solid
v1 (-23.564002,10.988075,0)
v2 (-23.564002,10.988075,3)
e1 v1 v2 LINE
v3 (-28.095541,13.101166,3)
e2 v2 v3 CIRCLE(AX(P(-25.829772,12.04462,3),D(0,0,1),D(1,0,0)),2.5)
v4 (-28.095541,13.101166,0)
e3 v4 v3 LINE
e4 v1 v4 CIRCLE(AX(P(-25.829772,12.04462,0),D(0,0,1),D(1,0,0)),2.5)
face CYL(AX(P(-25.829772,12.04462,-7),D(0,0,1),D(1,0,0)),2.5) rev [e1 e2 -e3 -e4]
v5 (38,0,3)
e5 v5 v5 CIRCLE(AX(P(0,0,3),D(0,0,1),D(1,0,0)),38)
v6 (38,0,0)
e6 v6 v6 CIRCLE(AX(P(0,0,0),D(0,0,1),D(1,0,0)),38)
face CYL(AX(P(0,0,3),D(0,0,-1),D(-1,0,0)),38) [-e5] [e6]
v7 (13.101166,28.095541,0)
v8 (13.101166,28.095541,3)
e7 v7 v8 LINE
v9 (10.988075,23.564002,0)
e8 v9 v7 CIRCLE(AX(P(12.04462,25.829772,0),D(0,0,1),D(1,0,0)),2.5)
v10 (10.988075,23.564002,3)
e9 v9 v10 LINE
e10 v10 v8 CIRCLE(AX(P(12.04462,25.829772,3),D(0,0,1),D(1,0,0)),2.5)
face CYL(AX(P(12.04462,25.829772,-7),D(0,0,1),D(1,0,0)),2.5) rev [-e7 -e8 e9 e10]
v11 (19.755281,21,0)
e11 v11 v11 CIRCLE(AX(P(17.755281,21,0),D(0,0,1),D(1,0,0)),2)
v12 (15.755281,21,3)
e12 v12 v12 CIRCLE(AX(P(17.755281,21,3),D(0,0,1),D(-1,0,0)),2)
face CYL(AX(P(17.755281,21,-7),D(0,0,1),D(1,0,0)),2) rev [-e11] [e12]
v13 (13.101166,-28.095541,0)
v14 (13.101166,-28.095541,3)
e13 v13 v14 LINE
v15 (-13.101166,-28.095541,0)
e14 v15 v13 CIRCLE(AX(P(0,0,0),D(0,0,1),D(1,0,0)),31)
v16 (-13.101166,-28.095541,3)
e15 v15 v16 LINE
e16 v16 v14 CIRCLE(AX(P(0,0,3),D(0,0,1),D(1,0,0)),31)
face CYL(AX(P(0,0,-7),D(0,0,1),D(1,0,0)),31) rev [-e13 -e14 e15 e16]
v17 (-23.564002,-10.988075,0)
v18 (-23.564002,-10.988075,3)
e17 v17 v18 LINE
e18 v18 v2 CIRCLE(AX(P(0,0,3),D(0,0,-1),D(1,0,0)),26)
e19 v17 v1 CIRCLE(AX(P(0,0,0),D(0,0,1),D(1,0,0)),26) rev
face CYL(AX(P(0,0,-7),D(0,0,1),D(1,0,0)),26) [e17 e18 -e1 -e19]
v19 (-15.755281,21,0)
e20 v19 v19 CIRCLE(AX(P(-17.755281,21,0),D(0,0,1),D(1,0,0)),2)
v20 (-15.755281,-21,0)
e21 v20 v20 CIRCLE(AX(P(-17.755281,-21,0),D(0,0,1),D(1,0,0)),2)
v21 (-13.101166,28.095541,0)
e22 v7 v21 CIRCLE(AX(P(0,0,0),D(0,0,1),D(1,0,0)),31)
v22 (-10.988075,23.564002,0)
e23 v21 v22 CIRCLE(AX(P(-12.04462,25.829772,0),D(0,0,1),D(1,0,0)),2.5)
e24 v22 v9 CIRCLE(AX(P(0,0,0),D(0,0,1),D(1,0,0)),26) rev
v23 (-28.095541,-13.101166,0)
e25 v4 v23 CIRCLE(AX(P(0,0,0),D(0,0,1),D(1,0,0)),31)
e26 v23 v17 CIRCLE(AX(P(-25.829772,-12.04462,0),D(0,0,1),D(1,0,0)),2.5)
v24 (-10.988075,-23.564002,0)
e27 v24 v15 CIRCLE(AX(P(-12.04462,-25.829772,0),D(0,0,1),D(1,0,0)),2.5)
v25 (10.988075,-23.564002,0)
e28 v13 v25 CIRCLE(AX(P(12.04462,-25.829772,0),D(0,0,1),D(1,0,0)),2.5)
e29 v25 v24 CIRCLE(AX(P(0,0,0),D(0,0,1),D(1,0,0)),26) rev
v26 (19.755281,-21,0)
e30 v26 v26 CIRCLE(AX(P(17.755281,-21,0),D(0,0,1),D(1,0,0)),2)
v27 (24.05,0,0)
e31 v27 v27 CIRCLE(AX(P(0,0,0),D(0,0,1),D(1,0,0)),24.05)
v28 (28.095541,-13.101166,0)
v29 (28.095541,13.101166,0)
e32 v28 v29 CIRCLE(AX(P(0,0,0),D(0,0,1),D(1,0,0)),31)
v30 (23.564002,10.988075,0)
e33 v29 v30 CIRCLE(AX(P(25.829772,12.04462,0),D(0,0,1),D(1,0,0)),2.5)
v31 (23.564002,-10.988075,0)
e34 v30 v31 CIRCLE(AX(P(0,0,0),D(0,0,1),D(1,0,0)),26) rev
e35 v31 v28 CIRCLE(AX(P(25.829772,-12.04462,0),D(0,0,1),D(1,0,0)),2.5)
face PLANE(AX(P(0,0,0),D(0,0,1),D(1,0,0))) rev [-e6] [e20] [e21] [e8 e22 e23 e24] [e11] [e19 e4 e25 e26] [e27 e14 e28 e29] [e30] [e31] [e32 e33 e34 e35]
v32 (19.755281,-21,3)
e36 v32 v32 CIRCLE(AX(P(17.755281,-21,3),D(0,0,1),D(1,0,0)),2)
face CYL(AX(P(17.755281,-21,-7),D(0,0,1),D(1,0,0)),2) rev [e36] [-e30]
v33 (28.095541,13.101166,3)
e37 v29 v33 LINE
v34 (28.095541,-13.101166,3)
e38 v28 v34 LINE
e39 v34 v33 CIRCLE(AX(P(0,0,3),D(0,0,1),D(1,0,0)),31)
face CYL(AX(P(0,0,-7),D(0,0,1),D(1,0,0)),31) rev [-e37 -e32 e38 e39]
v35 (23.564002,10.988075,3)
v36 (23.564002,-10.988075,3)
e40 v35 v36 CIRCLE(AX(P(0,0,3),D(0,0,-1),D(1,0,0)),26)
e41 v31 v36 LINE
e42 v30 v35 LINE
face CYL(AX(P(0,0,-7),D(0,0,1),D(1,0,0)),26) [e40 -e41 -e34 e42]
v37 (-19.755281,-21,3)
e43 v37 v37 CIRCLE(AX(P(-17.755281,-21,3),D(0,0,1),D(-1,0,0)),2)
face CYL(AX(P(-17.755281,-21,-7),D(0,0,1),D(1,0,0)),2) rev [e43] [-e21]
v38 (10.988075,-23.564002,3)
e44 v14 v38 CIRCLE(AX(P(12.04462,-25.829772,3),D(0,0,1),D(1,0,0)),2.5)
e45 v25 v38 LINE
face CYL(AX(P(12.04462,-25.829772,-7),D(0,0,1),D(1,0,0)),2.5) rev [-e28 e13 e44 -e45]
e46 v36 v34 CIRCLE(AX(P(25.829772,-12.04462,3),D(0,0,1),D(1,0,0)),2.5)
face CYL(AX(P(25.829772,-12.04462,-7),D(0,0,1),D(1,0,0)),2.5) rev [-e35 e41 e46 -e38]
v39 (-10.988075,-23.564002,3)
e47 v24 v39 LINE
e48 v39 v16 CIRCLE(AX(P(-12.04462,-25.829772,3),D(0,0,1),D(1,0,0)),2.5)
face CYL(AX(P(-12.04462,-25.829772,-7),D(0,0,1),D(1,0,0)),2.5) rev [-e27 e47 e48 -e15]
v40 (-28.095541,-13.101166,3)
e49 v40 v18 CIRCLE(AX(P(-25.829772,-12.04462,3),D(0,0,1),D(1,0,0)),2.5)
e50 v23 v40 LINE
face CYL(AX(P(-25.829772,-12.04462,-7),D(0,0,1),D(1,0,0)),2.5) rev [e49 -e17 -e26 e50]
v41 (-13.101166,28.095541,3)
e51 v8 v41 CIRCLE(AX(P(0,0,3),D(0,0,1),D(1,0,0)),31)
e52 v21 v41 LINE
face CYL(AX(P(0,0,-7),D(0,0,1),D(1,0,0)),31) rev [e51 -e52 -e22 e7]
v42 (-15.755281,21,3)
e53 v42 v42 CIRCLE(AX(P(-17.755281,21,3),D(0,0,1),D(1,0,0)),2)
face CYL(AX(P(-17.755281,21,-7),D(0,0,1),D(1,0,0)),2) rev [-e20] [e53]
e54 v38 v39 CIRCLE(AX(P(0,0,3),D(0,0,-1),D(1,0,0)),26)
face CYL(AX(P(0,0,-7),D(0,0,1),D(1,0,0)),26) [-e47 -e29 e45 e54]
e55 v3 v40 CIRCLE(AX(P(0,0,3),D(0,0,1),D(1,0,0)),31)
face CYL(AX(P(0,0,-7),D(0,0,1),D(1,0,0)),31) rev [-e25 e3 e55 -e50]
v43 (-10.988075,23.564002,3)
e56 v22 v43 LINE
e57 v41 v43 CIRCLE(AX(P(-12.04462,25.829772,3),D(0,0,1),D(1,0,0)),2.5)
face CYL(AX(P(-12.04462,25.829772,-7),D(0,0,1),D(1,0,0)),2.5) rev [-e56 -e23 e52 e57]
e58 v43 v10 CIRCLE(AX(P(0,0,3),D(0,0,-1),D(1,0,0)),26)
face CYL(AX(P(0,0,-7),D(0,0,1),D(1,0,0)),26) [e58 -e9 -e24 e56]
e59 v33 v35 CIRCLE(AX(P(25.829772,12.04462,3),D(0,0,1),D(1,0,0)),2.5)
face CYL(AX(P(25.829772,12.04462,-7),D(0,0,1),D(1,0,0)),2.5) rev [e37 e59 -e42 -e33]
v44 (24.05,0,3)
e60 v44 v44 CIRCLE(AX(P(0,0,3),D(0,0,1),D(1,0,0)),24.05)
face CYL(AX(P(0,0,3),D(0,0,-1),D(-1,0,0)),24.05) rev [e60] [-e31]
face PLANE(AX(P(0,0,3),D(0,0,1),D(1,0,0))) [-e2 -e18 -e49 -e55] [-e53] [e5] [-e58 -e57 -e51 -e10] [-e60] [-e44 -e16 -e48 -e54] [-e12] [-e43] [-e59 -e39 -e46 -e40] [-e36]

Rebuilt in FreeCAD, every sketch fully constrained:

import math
import FreeCAD as App
import Part
import Sketcher

doc = App.newDocument("Part")
params = doc.addObject("Spreadsheet::Sheet", "Params")
for row, (alias, value) in enumerate([
    ("sketch1_diameter", "76 mm"),
    ("sketch1_diameter2", "48.1 mm"),
    ("pad1_length", "3 mm"),
    ("sketch2_diameter", "4 mm"),
    ("pocket1_length", "10 mm"),
    ("sketch3_radius", "31 mm"),
    ("sketch3_radius2", "26 mm"),
    ("pocket2_length", "10 mm"),
], start=1):
    params.set(f"A{row}", alias)
    params.set(f"B{row}", "=" + value)
    params.setAlias(f"B{row}", alias)

body = doc.addObject("PartDesign::Body", "Body")

# Sketch on XY plane
sketch1 = body.newObject("Sketcher::SketchObject", "Sketch")
sketch1.AttachmentSupport = (doc.getObject("XY_Plane"), [""])
sketch1.MapMode = "FlatFace"
sketch1.addGeometry(Part.Circle(App.Vector(0, 0, 0), App.Vector(0, 0, 1), 38), False)
sketch1.addGeometry(Part.Circle(App.Vector(0, 0, 0), App.Vector(0, 0, 1), 24.05), False)
sketch1.addConstraint(Sketcher.Constraint("Coincident", 0, 3, -1, 1))
sketch1.addConstraint(Sketcher.Constraint("Coincident", 1, 3, -1, 1))
sketch1.addConstraint(Sketcher.Constraint("Diameter", 0, 76.0))
sketch1.addConstraint(Sketcher.Constraint("Diameter", 1, 48.1))
sketch1.setExpression("Constraints[2]", "Params.sketch1_diameter")
sketch1.setExpression("Constraints[3]", "Params.sketch1_diameter2")
pad1 = body.newObject("PartDesign::Pad", "Pad")
pad1.Profile = sketch1
pad1.setExpression("Length", "Params.pad1_length")

# Sketch on XY plane
sketch2 = body.newObject("Sketcher::SketchObject", "Sketch001")
sketch2.AttachmentSupport = (doc.getObject("XY_Plane"), [""])
sketch2.MapMode = "FlatFace"
sketch2.AttachmentOffset = App.Placement(App.Vector(0, 0, 3), App.Rotation())
sketch2.addGeometry(Part.Circle(App.Vector(17.755281, -21, 0), App.Vector(0, 0, 1), 2), False)
sketch2.addGeometry(Part.Circle(App.Vector(17.755281, 21, 0), App.Vector(0, 0, 1), 2), False)
sketch2.addGeometry(Part.Circle(App.Vector(-17.755281, -21, 0), App.Vector(0, 0, 1), 2), False)
sketch2.addGeometry(Part.Circle(App.Vector(-17.755281, 21, 0), App.Vector(0, 0, 1), 2), False)
sketch2.addConstraint(Sketcher.Constraint("Equal", 0, 1))
sketch2.addConstraint(Sketcher.Constraint("Equal", 1, 2))
sketch2.addConstraint(Sketcher.Constraint("Equal", 2, 3))
sketch2.addConstraint(Sketcher.Constraint("Symmetric", 1, 3, 2, 3, -1, 1))
sketch2.addConstraint(Sketcher.Constraint("Symmetric", 0, 3, 3, 3, -1, 1))
sketch2.addConstraint(Sketcher.Constraint("Symmetric", 0, 3, 2, 3, -2))
sketch2.addConstraint(Sketcher.Constraint("Diameter", 0, 4.0))
sketch2.addConstraint(Sketcher.Constraint("DistanceY", 0, 3, -1, 1, 21.0))
sketch2.addConstraint(Sketcher.Constraint("DistanceX", -1, 1, 0, 3, 17.755281))
sketch2.setExpression("Constraints[6]", "Params.sketch2_diameter")
pocket1 = body.newObject("PartDesign::Pocket", "Pocket")
pocket1.Profile = sketch2
pocket1.setExpression("Length", "Params.pocket1_length")

# Sketch on XY plane
sketch3 = body.newObject("Sketcher::SketchObject", "Sketch002")
sketch3.AttachmentSupport = (doc.getObject("XY_Plane"), [""])
sketch3.MapMode = "FlatFace"
sketch3.AttachmentOffset = App.Placement(App.Vector(0, 0, 3), App.Rotation())
sketch3.addGeometry(Part.ArcOfCircle(Part.Circle(App.Vector(0, 0, 0), App.Vector(0, 0, 1), 31), math.radians(-25), math.radians(25)), False)
sketch3.addGeometry(Part.ArcOfCircle(Part.Circle(App.Vector(25.829772, 12.04462, 0), App.Vector(0, 0, 1), 2.5), math.radians(25), math.radians(205)), False)
sketch3.addGeometry(Part.ArcOfCircle(Part.Circle(App.Vector(0, 0, 0), App.Vector(0, 0, 1), 26), math.radians(-25), math.radians(25)), False)
sketch3.addGeometry(Part.ArcOfCircle(Part.Circle(App.Vector(25.829772, -12.04462, 0), App.Vector(0, 0, 1), 2.5), math.radians(155), math.radians(335)), False)
sketch3.addGeometry(Part.ArcOfCircle(Part.Circle(App.Vector(0, 0, 0), App.Vector(0, 0, 1), 31), math.radians(-115), math.radians(-65)), False)
sketch3.addGeometry(Part.ArcOfCircle(Part.Circle(App.Vector(12.04462, -25.829772, 0), App.Vector(0, 0, 1), 2.5), math.radians(-65), math.radians(115)), False)
sketch3.addGeometry(Part.ArcOfCircle(Part.Circle(App.Vector(0, 0, 0), App.Vector(0, 0, 1), 26), math.radians(-115), math.radians(-65)), False)
sketch3.addGeometry(Part.ArcOfCircle(Part.Circle(App.Vector(-12.04462, -25.829772, 0), App.Vector(0, 0, 1), 2.5), math.radians(65), math.radians(245)), False)
sketch3.addGeometry(Part.ArcOfCircle(Part.Circle(App.Vector(0, 0, 0), App.Vector(0, 0, 1), 31), math.radians(155), math.radians(205)), False)
sketch3.addGeometry(Part.ArcOfCircle(Part.Circle(App.Vector(-25.829772, -12.04462, 0), App.Vector(0, 0, 1), 2.5), math.radians(-155), math.radians(25)), False)
sketch3.addGeometry(Part.ArcOfCircle(Part.Circle(App.Vector(0, 0, 0), App.Vector(0, 0, 1), 26), math.radians(155), math.radians(205)), False)
sketch3.addGeometry(Part.ArcOfCircle(Part.Circle(App.Vector(-25.829772, 12.04462, 0), App.Vector(0, 0, 1), 2.5), math.radians(-25), math.radians(155)), False)
sketch3.addGeometry(Part.ArcOfCircle(Part.Circle(App.Vector(0, 0, 0), App.Vector(0, 0, 1), 31), math.radians(65), math.radians(115)), False)
sketch3.addGeometry(Part.ArcOfCircle(Part.Circle(App.Vector(-12.04462, 25.829772, 0), App.Vector(0, 0, 1), 2.5), math.radians(115), math.radians(295)), False)
sketch3.addGeometry(Part.ArcOfCircle(Part.Circle(App.Vector(0, 0, 0), App.Vector(0, 0, 1), 26), math.radians(65), math.radians(115)), False)
sketch3.addGeometry(Part.ArcOfCircle(Part.Circle(App.Vector(12.04462, 25.829772, 0), App.Vector(0, 0, 1), 2.5), math.radians(-115), math.radians(65)), False)
sketch3.addConstraint(Sketcher.Constraint("Tangent", 0, 2, 1, 1))
sketch3.addConstraint(Sketcher.Constraint("Tangent", 1, 2, 2, 2))
sketch3.addConstraint(Sketcher.Constraint("Tangent", 2, 1, 3, 1))
sketch3.addConstraint(Sketcher.Constraint("Tangent", 3, 2, 0, 1))
sketch3.addConstraint(Sketcher.Constraint("Tangent", 4, 2, 5, 1))
sketch3.addConstraint(Sketcher.Constraint("Tangent", 5, 2, 6, 2))
sketch3.addConstraint(Sketcher.Constraint("Tangent", 6, 1, 7, 1))
sketch3.addConstraint(Sketcher.Constraint("Tangent", 7, 2, 4, 1))
sketch3.addConstraint(Sketcher.Constraint("Tangent", 8, 2, 9, 1))
sketch3.addConstraint(Sketcher.Constraint("Tangent", 9, 2, 10, 2))
sketch3.addConstraint(Sketcher.Constraint("Tangent", 10, 1, 11, 1))
sketch3.addConstraint(Sketcher.Constraint("Tangent", 11, 2, 8, 1))
sketch3.addConstraint(Sketcher.Constraint("Tangent", 12, 2, 13, 1))
sketch3.addConstraint(Sketcher.Constraint("Tangent", 13, 2, 14, 2))
sketch3.addConstraint(Sketcher.Constraint("Tangent", 14, 1, 15, 1))
sketch3.addConstraint(Sketcher.Constraint("Tangent", 15, 2, 12, 1))
sketch3.addConstraint(Sketcher.Constraint("Coincident", 0, 3, -1, 1))
sketch3.addConstraint(Sketcher.Constraint("Coincident", 2, 3, -1, 1))
sketch3.addConstraint(Sketcher.Constraint("Coincident", 4, 3, -1, 1))
sketch3.addConstraint(Sketcher.Constraint("Coincident", 6, 3, -1, 1))
sketch3.addConstraint(Sketcher.Constraint("Coincident", 8, 3, -1, 1))
sketch3.addConstraint(Sketcher.Constraint("Coincident", 10, 3, -1, 1))
sketch3.addConstraint(Sketcher.Constraint("Coincident", 12, 3, -1, 1))
sketch3.addConstraint(Sketcher.Constraint("Coincident", 14, 3, -1, 1))
sketch3.addConstraint(Sketcher.Constraint("Equal", 0, 4))
sketch3.addConstraint(Sketcher.Constraint("Equal", 3, 5))
sketch3.addConstraint(Sketcher.Constraint("Equal", 4, 8))
sketch3.addConstraint(Sketcher.Constraint("Equal", 7, 9))
sketch3.addConstraint(Sketcher.Constraint("Equal", 8, 12))
sketch3.addConstraint(Sketcher.Constraint("Equal", 11, 13))
sketch3.addConstraint(Sketcher.Constraint("Horizontal", 5, 3, 7, 3))
sketch3.addConstraint(Sketcher.Constraint("Horizontal", 3, 3, 9, 3))
sketch3.addConstraint(Sketcher.Constraint("Horizontal", 1, 3, 11, 3))
sketch3.addConstraint(Sketcher.Constraint("Horizontal", 13, 3, 15, 3))
sketch3.addConstraint(Sketcher.Constraint("Vertical", 1, 3, 3, 3))
sketch3.addConstraint(Sketcher.Constraint("Vertical", 7, 3, 13, 3))
sketch3.addConstraint(Sketcher.Constraint("Radius", 0, 31.0))
sketch3.addConstraint(Sketcher.Constraint("Radius", 2, 26.0))
sketch3.addConstraint(Sketcher.Constraint("DistanceX", -1, 1, 1, 3, 25.829772))
sketch3.addConstraint(Sketcher.Constraint("DistanceX", -1, 1, 5, 3, 12.04462))
sketch3.setExpression("Constraints[36]", "Params.sketch3_radius")
sketch3.setExpression("Constraints[37]", "Params.sketch3_radius2")
pocket2 = body.newObject("PartDesign::Pocket", "Pocket001")
pocket2.Profile = sketch3
pocket2.setExpression("Length", "Params.pocket2_length")

doc.recompute()
